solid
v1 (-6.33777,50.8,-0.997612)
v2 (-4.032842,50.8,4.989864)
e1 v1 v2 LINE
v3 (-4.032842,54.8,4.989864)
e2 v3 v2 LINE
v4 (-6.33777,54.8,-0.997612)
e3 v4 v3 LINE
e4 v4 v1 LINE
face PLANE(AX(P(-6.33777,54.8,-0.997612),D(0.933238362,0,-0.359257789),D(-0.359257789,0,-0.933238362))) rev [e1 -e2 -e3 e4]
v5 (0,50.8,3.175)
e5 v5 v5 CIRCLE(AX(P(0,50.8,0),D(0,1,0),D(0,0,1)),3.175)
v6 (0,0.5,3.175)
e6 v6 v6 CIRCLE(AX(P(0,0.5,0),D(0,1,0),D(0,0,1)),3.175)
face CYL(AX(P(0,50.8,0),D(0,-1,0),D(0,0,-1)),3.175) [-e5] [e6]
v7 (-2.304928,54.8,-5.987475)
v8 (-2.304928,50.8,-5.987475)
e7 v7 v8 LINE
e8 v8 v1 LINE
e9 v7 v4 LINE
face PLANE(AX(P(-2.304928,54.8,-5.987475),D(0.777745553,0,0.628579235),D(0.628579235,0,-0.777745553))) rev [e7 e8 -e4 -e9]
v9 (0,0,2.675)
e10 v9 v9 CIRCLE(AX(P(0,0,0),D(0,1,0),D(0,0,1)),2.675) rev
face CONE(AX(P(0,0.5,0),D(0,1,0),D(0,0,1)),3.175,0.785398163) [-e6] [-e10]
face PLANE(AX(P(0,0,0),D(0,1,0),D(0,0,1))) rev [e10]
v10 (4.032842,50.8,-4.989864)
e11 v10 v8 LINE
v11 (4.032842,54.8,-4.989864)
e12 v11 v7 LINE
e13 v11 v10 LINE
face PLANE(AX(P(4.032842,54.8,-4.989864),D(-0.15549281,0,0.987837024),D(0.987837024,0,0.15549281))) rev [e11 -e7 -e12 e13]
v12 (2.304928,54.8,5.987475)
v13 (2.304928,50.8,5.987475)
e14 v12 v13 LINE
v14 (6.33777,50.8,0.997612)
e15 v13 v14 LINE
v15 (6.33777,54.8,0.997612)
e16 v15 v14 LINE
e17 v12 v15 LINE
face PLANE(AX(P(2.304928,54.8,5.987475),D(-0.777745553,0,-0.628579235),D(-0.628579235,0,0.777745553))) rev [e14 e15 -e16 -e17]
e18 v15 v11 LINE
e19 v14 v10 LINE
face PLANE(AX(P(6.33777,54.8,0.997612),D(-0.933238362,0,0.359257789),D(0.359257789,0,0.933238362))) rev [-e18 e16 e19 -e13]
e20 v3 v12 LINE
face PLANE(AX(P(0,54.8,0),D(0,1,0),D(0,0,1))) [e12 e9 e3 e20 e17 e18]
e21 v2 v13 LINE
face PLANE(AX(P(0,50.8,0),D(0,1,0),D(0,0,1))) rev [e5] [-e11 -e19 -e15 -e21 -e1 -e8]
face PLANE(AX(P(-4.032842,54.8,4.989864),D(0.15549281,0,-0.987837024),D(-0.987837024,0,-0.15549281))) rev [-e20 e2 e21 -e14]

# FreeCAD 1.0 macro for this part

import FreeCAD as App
import Part
import Sketcher

V = App.Vector
Q = App.Units.Quantity


def edges_at(feature, points):
    """Names of the edges that pass closest to the given points."""
    edges = feature.Shape.Edges
    near = lambda p: min(range(len(edges)), key=lambda i: edges[i].distToShape(Part.Vertex(*p))[0])
    return sorted({f"Edge{near(p) + 1}" for p in points})


def add_polygon(sketch, points):
    """Adds a closed chain of lines whose ends are joined by coincident constraints."""
    first, n = sketch.GeometryCount, len(points)
    for a, b in zip(points, points[1:] + points[:1]):
        sketch.addGeometry(Part.LineSegment(App.Vector(*a, 0), App.Vector(*b, 0)), False)
    for i in range(n):
        sketch.addConstraint(Sketcher.Constraint("Coincident", first + i, 2, first + (i + 1) % n, 1))

doc = App.newDocument("Part")
body = doc.addObject("PartDesign::Body", "Body")

sketch1 = doc.addObject("Sketcher::SketchObject", "Sketch")
body.addObject(sketch1)
sketch1.AttachmentSupport = (doc.XZ_Plane, [""])
sketch1.MapMode = "FlatFace"
sketch1.addGeometry(Part.Circle(V(0, 0, 0), V(0, 0, 1), 3.175), False)
sketch1.addConstraint([
    Sketcher.Constraint("Coincident", 0, 3, -1, 1),
    Sketcher.Constraint("Diameter", 0, Q("6.35 mm")),
])
pad1 = doc.addObject("PartDesign::Pad", "Pad")
body.addObject(pad1)
pad1.Profile = sketch1
pad1.Length = 50.8
pad1.Reversed = True

sketch2 = doc.addObject("Sketcher::SketchObject", "Sketch001")
body.addObject(sketch2)
sketch2.AttachmentSupport = (doc.XZ_Plane, [""])
sketch2.MapMode = "FlatFace"
sketch2.AttachmentOffset = App.Placement(V(0, 0, -50.8), App.Rotation())
add_polygon(sketch2, [(-2.304928, -5.987475), (-6.33777, -0.997612), (-4.032842, 4.989864), (2.304928, 5.987475), (6.33777, 0.997612), (4.032842, -4.989864)])
sketch2.addConstraint([
    Sketcher.Constraint("Symmetric", 0, 2, 3, 2, -1, 1),
    Sketcher.Constraint("Symmetric", 1, 2, 4, 2, -1, 1),
    Sketcher.Constraint("Symmetric", 2, 2, 5, 2, -1, 1),
    Sketcher.Constraint("Equal", 0, 1),
    Sketcher.Constraint("Equal", 1, 2),
    Sketcher.Constraint("DistanceX", 0, 2, -1, 1, Q("6.33777 mm")),
    Sketcher.Constraint("DistanceY", 0, 2, -1, 1, Q("0.997612 mm")),
    Sketcher.Constraint("DistanceX", 1, 2, -1, 1, Q("4.032842 mm")),
    Sketcher.Constraint("DistanceX", 1, 2, 2, 2, Q("6.33777 mm")),
])
pad2 = doc.addObject("PartDesign::Pad", "Pad001")
body.addObject(pad2)
pad2.Profile = sketch2
pad2.Length = 4
pad2.Reversed = True
doc.recompute()

chamfer = doc.addObject("PartDesign::Chamfer", "Chamfer")
body.addObject(chamfer)
chamfer.Base = (pad2, edges_at(pad2, [(0, 0, -3.175)]))
chamfer.Size = 0.5

doc.recompute()
